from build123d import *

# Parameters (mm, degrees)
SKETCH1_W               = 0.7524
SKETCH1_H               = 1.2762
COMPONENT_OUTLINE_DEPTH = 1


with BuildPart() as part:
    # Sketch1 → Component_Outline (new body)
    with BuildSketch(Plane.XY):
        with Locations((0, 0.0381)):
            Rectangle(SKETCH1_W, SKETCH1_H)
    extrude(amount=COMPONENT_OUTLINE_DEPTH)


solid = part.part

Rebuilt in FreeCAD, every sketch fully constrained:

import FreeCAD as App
import Part
import Sketcher
Q = App.Units.Quantity

doc = App.newDocument("Part")
body = doc.addObject("PartDesign::Body", "Body")

sketch1 = doc.addObject("Sketcher::SketchObject", "Sketch")
body.addObject(sketch1)
sketch1.AttachmentSupport = (doc.XY_Plane, [""])
sketch1.MapMode = "FlatFace"
sketch1.addGeometry([
    Part.LineSegment(App.Vector(-0.4, 0.7, 0), App.Vector(-0.4, -0.6, 0)),
    Part.LineSegment(App.Vector(-0.4, -0.6, 0), App.Vector(0.4, -0.6, 0)),
    Part.LineSegment(App.Vector(0.4, -0.6, 0), App.Vector(0.4, 0.7, 0)),
    Part.LineSegment(App.Vector(0.4, 0.7, 0), App.Vector(-0.4, 0.7, 0)),
], False)
sketch1.addConstraint([
    Sketcher.Constraint("Coincident", 0, 2, 1, 1),
    Sketcher.Constraint("Coincident", 1, 2, 2, 1),
    Sketcher.Constraint("Coincident", 2, 2, 3, 1),
    Sketcher.Constraint("Coincident", 3, 2, 0, 1),
    Sketcher.Constraint("Vertical", 0),
    Sketcher.Constraint("Horizontal", 1),
    Sketcher.Constraint("Vertical", 2),
    Sketcher.Constraint("Horizontal", 3),
    Sketcher.Constraint("DistanceY", 0, 2, -1, 1, Q("0.6 mm")),
    Sketcher.Constraint("DistanceX", 1, 1, 1, 2, Q("0.7524 mm")),
    Sketcher.Constraint("DistanceY", 0, 2, 0, 1, Q("1.2762 mm")),
    Sketcher.Constraint("DistanceX", 0, 2, -1, 1, Q("0.3762 mm")),
])
pad1 = doc.addObject("PartDesign::Pad", "Pad")
body.addObject(pad1)
pad1.Profile = sketch1
pad1.Length = 1

doc.recompute()
